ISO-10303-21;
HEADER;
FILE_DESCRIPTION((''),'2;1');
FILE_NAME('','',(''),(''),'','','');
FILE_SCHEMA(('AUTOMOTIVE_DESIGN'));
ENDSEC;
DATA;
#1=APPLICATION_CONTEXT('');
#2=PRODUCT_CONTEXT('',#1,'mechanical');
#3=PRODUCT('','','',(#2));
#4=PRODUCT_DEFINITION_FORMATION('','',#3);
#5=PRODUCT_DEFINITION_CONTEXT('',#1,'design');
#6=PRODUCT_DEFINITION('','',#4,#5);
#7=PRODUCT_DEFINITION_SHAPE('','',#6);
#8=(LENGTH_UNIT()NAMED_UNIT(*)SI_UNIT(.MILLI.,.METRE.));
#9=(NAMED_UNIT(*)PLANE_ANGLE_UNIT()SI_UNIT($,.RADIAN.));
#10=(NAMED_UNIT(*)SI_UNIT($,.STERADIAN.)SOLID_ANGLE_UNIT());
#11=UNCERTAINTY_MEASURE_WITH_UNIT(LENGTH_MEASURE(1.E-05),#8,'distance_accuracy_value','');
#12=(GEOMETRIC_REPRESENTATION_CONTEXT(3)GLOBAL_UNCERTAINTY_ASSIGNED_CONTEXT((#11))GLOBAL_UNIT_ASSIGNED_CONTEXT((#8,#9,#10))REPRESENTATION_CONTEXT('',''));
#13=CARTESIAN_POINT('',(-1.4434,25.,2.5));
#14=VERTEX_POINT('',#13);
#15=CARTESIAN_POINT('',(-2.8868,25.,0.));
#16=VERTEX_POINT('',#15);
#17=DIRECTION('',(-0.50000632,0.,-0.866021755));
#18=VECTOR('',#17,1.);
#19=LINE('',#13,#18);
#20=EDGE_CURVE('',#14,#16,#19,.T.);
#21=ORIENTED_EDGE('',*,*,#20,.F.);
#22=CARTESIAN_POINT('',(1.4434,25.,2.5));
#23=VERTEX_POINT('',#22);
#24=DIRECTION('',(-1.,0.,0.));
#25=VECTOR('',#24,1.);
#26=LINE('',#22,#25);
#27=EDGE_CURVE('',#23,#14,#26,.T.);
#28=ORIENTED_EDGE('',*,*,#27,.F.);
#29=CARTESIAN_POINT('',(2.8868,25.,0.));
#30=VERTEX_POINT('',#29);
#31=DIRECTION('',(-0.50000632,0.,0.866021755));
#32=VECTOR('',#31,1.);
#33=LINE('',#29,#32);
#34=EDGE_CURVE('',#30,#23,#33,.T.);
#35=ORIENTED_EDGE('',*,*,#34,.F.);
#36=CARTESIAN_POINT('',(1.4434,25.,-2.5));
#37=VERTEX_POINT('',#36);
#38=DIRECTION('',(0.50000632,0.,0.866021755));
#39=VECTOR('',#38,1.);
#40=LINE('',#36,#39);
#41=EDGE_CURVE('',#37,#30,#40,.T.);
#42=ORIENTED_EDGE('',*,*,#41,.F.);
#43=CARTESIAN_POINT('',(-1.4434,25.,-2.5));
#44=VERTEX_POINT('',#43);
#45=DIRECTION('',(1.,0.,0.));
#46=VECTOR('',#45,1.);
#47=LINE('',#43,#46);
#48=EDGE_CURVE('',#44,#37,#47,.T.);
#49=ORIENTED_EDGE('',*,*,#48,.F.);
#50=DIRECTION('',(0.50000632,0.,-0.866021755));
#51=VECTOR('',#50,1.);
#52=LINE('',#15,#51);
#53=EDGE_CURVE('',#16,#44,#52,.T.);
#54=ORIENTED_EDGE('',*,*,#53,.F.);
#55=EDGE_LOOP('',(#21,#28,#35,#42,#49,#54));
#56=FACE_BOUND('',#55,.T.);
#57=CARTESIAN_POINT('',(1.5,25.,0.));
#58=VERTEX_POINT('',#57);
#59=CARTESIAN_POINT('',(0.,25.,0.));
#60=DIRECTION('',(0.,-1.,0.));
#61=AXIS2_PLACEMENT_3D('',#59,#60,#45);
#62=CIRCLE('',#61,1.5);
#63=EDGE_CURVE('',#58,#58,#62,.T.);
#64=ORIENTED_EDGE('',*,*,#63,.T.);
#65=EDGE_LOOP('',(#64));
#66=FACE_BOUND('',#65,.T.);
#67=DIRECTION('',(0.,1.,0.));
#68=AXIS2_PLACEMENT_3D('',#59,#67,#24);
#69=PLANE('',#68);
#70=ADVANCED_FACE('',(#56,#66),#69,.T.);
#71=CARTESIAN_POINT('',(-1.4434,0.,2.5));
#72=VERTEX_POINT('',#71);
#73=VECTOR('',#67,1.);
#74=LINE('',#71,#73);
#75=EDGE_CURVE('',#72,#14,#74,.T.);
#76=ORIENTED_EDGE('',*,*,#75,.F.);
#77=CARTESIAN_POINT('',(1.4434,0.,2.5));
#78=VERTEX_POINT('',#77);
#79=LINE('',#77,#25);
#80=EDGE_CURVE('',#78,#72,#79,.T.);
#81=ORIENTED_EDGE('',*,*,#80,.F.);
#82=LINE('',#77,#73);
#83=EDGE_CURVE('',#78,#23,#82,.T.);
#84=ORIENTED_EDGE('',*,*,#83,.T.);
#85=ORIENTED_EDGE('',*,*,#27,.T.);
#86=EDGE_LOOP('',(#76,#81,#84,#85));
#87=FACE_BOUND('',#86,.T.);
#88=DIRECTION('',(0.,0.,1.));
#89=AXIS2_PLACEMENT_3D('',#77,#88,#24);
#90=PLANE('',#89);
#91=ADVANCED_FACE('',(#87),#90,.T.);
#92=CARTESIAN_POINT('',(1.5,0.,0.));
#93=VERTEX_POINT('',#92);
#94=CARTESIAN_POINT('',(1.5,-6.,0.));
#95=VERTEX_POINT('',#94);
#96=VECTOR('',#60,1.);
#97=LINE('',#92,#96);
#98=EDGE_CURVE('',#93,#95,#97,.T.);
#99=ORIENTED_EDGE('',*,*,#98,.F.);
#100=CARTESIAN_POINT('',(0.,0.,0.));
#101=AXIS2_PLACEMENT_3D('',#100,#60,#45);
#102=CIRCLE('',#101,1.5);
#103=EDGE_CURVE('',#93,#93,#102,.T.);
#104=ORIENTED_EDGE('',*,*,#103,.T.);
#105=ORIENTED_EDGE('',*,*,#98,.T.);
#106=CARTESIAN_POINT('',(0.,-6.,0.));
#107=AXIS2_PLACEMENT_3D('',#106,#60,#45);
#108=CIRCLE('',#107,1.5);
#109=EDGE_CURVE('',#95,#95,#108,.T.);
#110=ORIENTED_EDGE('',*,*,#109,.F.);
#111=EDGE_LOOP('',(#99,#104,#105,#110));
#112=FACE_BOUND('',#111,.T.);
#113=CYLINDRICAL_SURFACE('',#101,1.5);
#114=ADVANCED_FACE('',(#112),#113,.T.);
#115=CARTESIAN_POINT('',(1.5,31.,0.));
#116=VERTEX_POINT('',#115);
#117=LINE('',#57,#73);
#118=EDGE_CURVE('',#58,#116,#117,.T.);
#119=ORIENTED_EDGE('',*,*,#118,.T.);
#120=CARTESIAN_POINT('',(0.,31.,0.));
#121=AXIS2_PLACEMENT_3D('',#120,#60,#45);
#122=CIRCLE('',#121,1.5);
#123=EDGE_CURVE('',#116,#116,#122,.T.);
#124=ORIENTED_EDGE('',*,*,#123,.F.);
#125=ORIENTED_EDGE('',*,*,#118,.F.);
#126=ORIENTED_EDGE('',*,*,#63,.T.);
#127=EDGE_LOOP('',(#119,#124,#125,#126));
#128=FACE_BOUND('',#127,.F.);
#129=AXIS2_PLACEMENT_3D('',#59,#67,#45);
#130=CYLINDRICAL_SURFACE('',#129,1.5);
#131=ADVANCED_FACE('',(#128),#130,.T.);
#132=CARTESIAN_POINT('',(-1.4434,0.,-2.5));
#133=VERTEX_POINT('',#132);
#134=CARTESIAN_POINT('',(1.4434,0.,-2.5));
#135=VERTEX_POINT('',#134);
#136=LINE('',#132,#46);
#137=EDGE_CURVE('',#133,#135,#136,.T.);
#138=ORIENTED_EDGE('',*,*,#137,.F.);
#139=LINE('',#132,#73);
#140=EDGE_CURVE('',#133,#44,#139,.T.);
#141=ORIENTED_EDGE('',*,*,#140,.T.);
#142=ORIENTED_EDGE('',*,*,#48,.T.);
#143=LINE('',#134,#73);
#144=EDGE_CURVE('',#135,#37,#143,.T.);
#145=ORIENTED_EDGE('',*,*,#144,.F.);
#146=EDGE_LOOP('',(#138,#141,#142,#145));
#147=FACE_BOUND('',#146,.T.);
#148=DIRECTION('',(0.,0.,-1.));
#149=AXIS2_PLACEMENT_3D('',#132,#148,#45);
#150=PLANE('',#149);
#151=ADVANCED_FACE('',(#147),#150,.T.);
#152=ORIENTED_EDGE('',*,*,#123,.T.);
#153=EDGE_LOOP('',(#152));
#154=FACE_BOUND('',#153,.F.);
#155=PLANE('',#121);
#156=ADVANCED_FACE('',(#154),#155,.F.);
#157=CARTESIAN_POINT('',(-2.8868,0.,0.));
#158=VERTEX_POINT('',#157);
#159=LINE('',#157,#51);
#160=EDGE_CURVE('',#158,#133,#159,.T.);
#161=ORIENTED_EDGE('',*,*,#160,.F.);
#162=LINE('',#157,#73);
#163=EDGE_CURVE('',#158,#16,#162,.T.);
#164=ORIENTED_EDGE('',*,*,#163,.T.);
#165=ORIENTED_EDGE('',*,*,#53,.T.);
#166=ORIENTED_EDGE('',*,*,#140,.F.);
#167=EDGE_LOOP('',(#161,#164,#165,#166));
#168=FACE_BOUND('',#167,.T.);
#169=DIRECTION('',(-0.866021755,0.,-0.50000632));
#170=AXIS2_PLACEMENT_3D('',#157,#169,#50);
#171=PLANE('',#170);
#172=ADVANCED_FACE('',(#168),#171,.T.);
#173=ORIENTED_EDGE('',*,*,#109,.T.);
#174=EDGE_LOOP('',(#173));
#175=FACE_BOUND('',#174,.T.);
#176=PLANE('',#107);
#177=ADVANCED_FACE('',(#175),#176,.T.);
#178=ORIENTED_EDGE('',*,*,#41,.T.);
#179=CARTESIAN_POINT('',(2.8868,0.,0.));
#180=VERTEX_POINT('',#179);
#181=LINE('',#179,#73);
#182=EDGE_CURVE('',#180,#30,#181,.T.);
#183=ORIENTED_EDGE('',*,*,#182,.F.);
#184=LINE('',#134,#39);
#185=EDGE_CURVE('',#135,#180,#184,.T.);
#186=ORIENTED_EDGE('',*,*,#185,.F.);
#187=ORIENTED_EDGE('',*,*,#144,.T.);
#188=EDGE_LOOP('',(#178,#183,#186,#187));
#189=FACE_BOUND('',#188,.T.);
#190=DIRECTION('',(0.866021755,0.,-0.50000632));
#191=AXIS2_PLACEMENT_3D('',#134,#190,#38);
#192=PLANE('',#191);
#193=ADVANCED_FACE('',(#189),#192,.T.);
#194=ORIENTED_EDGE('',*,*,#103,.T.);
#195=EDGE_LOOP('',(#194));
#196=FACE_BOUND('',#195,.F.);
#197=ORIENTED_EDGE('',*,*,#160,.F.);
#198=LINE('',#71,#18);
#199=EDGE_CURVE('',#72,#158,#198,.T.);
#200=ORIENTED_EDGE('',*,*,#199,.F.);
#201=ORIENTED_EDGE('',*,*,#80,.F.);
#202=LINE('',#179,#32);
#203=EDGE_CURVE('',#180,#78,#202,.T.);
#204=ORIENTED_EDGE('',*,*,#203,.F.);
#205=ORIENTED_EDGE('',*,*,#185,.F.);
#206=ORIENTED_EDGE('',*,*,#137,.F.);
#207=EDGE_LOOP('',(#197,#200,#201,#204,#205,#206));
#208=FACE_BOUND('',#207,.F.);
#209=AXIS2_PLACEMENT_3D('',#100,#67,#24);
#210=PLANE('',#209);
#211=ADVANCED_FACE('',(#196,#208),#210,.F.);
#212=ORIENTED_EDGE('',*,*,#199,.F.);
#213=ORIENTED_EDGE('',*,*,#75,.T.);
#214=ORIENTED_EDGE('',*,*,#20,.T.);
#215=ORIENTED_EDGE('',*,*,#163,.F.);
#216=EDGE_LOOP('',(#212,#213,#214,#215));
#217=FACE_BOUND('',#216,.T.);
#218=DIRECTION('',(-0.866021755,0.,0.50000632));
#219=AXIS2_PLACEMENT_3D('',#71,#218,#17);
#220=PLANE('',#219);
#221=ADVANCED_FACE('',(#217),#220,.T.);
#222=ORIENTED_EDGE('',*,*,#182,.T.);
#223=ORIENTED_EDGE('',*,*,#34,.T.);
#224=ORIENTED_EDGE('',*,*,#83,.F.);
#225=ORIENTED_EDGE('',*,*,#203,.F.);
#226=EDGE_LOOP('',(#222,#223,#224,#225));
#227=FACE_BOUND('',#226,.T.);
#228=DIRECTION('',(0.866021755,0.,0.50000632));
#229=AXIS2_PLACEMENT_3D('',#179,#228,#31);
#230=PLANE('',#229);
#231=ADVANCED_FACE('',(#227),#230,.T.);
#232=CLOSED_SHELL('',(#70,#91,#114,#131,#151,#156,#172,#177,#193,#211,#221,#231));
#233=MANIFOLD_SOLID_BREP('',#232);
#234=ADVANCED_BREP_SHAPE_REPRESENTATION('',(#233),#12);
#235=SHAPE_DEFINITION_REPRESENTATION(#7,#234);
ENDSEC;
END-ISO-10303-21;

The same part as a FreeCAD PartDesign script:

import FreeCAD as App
import Part
import Sketcher
Q = App.Units.Quantity


def add_polygon(sketch, points):
    """Adds a closed chain of lines whose ends are joined by coincident constraints."""
    first, n = sketch.GeometryCount, len(points)
    for a, b in zip(points, points[1:] + points[:1]):
        sketch.addGeometry(Part.LineSegment(App.Vector(*a, 0), App.Vector(*b, 0)), False)
    for i in range(n):
        sketch.addConstraint(Sketcher.Constraint("Coincident", first + i, 2, first + (i + 1) % n, 1))

doc = App.newDocument("Part")
body = doc.addObject("PartDesign::Body", "Body")

sketch1 = body.newObject("Sketcher::SketchObject", "Sketch")
sketch1.AttachmentSupport = (doc.getObject("XZ_Plane"), [""])
sketch1.MapMode = "FlatFace"
add_polygon(sketch1, [(1.4434, 2.5), (2.8868, 0), (1.4434, -2.5), (-1.4434, -2.5), (-2.8868, 0), (-1.4434, 2.5)])
sketch1.addConstraint(Sketcher.Constraint("Horizontal", 2))
sketch1.addConstraint(Sketcher.Constraint("Horizontal", 5))
sketch1.addConstraint(Sketcher.Constraint("Symmetric", 0, 2, 3, 2, -1, 1))
sketch1.addConstraint(Sketcher.Constraint("Symmetric", 1, 2, 4, 2, -1, 1))
sketch1.addConstraint(Sketcher.Constraint("PointOnObject", 0, 2, -1))
sketch1.addConstraint(Sketcher.Constraint("Parallel", 0, 3))
sketch1.addConstraint(Sketcher.Constraint("Vertical", 2, 2, 4, 2))
sketch1.addConstraint(Sketcher.Constraint("DistanceY", 2, 2, 4, 2, Q("5 mm")))
sketch1.addConstraint(Sketcher.Constraint("Angle", 0, Q("-59.9996 deg")))
sketch1.addConstraint(Sketcher.Constraint("DistanceX", 2, 2, 2, 1, Q("2.8868 mm")))
pad1 = body.newObject("PartDesign::Pad", "Pad")
pad1.Profile = sketch1
pad1.Length = 25
pad1.Reversed = True

sketch2 = body.newObject("Sketcher::SketchObject", "Sketch001")
sketch2.AttachmentSupport = (doc.getObject("XY_Plane"), [""])
sketch2.MapMode = "FlatFace"
add_polygon(sketch2, [(0, 25), (1.5, 25), (1.5, 31), (0, 31)])
add_polygon(sketch2, [(1.5, 0), (0, 0), (0, -6), (1.5, -6)])
sketch2.addConstraint(Sketcher.Constraint("Horizontal", 0))
sketch2.addConstraint(Sketcher.Constraint("Vertical", 1))
sketch2.addConstraint(Sketcher.Constraint("Horizontal", 2))
sketch2.addConstraint(Sketcher.Constraint("Vertical", 3))
sketch2.addConstraint(Sketcher.Constraint("Horizontal", 4))
sketch2.addConstraint(Sketcher.Constraint("Vertical", 5))
sketch2.addConstraint(Sketcher.Constraint("Horizontal", 6))
sketch2.addConstraint(Sketcher.Constraint("Vertical", 7))
sketch2.addConstraint(Sketcher.Constraint("Coincident", 4, 2, -1, 1))
sketch2.addConstraint(Sketcher.Constraint("PointOnObject", 2, 2, -2))
sketch2.addConstraint(Sketcher.Constraint("Vertical", 1, 2, 6, 2))
sketch2.addConstraint(Sketcher.Constraint("Equal", 3, 5))
sketch2.addConstraint(Sketcher.Constraint("DistanceY", 1, 1, 1, 2, Q("6 mm")))
sketch2.addConstraint(Sketcher.Constraint("DistanceX", 0, 1, 0, 2, Q("1.5 mm")))
sketch2.addConstraint(Sketcher.Constraint("DistanceY", -1, 1, 0, 2, Q("25 mm")))
revolution = body.newObject("PartDesign::Revolution", "Revolution")
revolution.Profile = sketch2
revolution.ReferenceAxis = (sketch2, ["V_Axis"])
revolution.Angle = 360

doc.recompute()
